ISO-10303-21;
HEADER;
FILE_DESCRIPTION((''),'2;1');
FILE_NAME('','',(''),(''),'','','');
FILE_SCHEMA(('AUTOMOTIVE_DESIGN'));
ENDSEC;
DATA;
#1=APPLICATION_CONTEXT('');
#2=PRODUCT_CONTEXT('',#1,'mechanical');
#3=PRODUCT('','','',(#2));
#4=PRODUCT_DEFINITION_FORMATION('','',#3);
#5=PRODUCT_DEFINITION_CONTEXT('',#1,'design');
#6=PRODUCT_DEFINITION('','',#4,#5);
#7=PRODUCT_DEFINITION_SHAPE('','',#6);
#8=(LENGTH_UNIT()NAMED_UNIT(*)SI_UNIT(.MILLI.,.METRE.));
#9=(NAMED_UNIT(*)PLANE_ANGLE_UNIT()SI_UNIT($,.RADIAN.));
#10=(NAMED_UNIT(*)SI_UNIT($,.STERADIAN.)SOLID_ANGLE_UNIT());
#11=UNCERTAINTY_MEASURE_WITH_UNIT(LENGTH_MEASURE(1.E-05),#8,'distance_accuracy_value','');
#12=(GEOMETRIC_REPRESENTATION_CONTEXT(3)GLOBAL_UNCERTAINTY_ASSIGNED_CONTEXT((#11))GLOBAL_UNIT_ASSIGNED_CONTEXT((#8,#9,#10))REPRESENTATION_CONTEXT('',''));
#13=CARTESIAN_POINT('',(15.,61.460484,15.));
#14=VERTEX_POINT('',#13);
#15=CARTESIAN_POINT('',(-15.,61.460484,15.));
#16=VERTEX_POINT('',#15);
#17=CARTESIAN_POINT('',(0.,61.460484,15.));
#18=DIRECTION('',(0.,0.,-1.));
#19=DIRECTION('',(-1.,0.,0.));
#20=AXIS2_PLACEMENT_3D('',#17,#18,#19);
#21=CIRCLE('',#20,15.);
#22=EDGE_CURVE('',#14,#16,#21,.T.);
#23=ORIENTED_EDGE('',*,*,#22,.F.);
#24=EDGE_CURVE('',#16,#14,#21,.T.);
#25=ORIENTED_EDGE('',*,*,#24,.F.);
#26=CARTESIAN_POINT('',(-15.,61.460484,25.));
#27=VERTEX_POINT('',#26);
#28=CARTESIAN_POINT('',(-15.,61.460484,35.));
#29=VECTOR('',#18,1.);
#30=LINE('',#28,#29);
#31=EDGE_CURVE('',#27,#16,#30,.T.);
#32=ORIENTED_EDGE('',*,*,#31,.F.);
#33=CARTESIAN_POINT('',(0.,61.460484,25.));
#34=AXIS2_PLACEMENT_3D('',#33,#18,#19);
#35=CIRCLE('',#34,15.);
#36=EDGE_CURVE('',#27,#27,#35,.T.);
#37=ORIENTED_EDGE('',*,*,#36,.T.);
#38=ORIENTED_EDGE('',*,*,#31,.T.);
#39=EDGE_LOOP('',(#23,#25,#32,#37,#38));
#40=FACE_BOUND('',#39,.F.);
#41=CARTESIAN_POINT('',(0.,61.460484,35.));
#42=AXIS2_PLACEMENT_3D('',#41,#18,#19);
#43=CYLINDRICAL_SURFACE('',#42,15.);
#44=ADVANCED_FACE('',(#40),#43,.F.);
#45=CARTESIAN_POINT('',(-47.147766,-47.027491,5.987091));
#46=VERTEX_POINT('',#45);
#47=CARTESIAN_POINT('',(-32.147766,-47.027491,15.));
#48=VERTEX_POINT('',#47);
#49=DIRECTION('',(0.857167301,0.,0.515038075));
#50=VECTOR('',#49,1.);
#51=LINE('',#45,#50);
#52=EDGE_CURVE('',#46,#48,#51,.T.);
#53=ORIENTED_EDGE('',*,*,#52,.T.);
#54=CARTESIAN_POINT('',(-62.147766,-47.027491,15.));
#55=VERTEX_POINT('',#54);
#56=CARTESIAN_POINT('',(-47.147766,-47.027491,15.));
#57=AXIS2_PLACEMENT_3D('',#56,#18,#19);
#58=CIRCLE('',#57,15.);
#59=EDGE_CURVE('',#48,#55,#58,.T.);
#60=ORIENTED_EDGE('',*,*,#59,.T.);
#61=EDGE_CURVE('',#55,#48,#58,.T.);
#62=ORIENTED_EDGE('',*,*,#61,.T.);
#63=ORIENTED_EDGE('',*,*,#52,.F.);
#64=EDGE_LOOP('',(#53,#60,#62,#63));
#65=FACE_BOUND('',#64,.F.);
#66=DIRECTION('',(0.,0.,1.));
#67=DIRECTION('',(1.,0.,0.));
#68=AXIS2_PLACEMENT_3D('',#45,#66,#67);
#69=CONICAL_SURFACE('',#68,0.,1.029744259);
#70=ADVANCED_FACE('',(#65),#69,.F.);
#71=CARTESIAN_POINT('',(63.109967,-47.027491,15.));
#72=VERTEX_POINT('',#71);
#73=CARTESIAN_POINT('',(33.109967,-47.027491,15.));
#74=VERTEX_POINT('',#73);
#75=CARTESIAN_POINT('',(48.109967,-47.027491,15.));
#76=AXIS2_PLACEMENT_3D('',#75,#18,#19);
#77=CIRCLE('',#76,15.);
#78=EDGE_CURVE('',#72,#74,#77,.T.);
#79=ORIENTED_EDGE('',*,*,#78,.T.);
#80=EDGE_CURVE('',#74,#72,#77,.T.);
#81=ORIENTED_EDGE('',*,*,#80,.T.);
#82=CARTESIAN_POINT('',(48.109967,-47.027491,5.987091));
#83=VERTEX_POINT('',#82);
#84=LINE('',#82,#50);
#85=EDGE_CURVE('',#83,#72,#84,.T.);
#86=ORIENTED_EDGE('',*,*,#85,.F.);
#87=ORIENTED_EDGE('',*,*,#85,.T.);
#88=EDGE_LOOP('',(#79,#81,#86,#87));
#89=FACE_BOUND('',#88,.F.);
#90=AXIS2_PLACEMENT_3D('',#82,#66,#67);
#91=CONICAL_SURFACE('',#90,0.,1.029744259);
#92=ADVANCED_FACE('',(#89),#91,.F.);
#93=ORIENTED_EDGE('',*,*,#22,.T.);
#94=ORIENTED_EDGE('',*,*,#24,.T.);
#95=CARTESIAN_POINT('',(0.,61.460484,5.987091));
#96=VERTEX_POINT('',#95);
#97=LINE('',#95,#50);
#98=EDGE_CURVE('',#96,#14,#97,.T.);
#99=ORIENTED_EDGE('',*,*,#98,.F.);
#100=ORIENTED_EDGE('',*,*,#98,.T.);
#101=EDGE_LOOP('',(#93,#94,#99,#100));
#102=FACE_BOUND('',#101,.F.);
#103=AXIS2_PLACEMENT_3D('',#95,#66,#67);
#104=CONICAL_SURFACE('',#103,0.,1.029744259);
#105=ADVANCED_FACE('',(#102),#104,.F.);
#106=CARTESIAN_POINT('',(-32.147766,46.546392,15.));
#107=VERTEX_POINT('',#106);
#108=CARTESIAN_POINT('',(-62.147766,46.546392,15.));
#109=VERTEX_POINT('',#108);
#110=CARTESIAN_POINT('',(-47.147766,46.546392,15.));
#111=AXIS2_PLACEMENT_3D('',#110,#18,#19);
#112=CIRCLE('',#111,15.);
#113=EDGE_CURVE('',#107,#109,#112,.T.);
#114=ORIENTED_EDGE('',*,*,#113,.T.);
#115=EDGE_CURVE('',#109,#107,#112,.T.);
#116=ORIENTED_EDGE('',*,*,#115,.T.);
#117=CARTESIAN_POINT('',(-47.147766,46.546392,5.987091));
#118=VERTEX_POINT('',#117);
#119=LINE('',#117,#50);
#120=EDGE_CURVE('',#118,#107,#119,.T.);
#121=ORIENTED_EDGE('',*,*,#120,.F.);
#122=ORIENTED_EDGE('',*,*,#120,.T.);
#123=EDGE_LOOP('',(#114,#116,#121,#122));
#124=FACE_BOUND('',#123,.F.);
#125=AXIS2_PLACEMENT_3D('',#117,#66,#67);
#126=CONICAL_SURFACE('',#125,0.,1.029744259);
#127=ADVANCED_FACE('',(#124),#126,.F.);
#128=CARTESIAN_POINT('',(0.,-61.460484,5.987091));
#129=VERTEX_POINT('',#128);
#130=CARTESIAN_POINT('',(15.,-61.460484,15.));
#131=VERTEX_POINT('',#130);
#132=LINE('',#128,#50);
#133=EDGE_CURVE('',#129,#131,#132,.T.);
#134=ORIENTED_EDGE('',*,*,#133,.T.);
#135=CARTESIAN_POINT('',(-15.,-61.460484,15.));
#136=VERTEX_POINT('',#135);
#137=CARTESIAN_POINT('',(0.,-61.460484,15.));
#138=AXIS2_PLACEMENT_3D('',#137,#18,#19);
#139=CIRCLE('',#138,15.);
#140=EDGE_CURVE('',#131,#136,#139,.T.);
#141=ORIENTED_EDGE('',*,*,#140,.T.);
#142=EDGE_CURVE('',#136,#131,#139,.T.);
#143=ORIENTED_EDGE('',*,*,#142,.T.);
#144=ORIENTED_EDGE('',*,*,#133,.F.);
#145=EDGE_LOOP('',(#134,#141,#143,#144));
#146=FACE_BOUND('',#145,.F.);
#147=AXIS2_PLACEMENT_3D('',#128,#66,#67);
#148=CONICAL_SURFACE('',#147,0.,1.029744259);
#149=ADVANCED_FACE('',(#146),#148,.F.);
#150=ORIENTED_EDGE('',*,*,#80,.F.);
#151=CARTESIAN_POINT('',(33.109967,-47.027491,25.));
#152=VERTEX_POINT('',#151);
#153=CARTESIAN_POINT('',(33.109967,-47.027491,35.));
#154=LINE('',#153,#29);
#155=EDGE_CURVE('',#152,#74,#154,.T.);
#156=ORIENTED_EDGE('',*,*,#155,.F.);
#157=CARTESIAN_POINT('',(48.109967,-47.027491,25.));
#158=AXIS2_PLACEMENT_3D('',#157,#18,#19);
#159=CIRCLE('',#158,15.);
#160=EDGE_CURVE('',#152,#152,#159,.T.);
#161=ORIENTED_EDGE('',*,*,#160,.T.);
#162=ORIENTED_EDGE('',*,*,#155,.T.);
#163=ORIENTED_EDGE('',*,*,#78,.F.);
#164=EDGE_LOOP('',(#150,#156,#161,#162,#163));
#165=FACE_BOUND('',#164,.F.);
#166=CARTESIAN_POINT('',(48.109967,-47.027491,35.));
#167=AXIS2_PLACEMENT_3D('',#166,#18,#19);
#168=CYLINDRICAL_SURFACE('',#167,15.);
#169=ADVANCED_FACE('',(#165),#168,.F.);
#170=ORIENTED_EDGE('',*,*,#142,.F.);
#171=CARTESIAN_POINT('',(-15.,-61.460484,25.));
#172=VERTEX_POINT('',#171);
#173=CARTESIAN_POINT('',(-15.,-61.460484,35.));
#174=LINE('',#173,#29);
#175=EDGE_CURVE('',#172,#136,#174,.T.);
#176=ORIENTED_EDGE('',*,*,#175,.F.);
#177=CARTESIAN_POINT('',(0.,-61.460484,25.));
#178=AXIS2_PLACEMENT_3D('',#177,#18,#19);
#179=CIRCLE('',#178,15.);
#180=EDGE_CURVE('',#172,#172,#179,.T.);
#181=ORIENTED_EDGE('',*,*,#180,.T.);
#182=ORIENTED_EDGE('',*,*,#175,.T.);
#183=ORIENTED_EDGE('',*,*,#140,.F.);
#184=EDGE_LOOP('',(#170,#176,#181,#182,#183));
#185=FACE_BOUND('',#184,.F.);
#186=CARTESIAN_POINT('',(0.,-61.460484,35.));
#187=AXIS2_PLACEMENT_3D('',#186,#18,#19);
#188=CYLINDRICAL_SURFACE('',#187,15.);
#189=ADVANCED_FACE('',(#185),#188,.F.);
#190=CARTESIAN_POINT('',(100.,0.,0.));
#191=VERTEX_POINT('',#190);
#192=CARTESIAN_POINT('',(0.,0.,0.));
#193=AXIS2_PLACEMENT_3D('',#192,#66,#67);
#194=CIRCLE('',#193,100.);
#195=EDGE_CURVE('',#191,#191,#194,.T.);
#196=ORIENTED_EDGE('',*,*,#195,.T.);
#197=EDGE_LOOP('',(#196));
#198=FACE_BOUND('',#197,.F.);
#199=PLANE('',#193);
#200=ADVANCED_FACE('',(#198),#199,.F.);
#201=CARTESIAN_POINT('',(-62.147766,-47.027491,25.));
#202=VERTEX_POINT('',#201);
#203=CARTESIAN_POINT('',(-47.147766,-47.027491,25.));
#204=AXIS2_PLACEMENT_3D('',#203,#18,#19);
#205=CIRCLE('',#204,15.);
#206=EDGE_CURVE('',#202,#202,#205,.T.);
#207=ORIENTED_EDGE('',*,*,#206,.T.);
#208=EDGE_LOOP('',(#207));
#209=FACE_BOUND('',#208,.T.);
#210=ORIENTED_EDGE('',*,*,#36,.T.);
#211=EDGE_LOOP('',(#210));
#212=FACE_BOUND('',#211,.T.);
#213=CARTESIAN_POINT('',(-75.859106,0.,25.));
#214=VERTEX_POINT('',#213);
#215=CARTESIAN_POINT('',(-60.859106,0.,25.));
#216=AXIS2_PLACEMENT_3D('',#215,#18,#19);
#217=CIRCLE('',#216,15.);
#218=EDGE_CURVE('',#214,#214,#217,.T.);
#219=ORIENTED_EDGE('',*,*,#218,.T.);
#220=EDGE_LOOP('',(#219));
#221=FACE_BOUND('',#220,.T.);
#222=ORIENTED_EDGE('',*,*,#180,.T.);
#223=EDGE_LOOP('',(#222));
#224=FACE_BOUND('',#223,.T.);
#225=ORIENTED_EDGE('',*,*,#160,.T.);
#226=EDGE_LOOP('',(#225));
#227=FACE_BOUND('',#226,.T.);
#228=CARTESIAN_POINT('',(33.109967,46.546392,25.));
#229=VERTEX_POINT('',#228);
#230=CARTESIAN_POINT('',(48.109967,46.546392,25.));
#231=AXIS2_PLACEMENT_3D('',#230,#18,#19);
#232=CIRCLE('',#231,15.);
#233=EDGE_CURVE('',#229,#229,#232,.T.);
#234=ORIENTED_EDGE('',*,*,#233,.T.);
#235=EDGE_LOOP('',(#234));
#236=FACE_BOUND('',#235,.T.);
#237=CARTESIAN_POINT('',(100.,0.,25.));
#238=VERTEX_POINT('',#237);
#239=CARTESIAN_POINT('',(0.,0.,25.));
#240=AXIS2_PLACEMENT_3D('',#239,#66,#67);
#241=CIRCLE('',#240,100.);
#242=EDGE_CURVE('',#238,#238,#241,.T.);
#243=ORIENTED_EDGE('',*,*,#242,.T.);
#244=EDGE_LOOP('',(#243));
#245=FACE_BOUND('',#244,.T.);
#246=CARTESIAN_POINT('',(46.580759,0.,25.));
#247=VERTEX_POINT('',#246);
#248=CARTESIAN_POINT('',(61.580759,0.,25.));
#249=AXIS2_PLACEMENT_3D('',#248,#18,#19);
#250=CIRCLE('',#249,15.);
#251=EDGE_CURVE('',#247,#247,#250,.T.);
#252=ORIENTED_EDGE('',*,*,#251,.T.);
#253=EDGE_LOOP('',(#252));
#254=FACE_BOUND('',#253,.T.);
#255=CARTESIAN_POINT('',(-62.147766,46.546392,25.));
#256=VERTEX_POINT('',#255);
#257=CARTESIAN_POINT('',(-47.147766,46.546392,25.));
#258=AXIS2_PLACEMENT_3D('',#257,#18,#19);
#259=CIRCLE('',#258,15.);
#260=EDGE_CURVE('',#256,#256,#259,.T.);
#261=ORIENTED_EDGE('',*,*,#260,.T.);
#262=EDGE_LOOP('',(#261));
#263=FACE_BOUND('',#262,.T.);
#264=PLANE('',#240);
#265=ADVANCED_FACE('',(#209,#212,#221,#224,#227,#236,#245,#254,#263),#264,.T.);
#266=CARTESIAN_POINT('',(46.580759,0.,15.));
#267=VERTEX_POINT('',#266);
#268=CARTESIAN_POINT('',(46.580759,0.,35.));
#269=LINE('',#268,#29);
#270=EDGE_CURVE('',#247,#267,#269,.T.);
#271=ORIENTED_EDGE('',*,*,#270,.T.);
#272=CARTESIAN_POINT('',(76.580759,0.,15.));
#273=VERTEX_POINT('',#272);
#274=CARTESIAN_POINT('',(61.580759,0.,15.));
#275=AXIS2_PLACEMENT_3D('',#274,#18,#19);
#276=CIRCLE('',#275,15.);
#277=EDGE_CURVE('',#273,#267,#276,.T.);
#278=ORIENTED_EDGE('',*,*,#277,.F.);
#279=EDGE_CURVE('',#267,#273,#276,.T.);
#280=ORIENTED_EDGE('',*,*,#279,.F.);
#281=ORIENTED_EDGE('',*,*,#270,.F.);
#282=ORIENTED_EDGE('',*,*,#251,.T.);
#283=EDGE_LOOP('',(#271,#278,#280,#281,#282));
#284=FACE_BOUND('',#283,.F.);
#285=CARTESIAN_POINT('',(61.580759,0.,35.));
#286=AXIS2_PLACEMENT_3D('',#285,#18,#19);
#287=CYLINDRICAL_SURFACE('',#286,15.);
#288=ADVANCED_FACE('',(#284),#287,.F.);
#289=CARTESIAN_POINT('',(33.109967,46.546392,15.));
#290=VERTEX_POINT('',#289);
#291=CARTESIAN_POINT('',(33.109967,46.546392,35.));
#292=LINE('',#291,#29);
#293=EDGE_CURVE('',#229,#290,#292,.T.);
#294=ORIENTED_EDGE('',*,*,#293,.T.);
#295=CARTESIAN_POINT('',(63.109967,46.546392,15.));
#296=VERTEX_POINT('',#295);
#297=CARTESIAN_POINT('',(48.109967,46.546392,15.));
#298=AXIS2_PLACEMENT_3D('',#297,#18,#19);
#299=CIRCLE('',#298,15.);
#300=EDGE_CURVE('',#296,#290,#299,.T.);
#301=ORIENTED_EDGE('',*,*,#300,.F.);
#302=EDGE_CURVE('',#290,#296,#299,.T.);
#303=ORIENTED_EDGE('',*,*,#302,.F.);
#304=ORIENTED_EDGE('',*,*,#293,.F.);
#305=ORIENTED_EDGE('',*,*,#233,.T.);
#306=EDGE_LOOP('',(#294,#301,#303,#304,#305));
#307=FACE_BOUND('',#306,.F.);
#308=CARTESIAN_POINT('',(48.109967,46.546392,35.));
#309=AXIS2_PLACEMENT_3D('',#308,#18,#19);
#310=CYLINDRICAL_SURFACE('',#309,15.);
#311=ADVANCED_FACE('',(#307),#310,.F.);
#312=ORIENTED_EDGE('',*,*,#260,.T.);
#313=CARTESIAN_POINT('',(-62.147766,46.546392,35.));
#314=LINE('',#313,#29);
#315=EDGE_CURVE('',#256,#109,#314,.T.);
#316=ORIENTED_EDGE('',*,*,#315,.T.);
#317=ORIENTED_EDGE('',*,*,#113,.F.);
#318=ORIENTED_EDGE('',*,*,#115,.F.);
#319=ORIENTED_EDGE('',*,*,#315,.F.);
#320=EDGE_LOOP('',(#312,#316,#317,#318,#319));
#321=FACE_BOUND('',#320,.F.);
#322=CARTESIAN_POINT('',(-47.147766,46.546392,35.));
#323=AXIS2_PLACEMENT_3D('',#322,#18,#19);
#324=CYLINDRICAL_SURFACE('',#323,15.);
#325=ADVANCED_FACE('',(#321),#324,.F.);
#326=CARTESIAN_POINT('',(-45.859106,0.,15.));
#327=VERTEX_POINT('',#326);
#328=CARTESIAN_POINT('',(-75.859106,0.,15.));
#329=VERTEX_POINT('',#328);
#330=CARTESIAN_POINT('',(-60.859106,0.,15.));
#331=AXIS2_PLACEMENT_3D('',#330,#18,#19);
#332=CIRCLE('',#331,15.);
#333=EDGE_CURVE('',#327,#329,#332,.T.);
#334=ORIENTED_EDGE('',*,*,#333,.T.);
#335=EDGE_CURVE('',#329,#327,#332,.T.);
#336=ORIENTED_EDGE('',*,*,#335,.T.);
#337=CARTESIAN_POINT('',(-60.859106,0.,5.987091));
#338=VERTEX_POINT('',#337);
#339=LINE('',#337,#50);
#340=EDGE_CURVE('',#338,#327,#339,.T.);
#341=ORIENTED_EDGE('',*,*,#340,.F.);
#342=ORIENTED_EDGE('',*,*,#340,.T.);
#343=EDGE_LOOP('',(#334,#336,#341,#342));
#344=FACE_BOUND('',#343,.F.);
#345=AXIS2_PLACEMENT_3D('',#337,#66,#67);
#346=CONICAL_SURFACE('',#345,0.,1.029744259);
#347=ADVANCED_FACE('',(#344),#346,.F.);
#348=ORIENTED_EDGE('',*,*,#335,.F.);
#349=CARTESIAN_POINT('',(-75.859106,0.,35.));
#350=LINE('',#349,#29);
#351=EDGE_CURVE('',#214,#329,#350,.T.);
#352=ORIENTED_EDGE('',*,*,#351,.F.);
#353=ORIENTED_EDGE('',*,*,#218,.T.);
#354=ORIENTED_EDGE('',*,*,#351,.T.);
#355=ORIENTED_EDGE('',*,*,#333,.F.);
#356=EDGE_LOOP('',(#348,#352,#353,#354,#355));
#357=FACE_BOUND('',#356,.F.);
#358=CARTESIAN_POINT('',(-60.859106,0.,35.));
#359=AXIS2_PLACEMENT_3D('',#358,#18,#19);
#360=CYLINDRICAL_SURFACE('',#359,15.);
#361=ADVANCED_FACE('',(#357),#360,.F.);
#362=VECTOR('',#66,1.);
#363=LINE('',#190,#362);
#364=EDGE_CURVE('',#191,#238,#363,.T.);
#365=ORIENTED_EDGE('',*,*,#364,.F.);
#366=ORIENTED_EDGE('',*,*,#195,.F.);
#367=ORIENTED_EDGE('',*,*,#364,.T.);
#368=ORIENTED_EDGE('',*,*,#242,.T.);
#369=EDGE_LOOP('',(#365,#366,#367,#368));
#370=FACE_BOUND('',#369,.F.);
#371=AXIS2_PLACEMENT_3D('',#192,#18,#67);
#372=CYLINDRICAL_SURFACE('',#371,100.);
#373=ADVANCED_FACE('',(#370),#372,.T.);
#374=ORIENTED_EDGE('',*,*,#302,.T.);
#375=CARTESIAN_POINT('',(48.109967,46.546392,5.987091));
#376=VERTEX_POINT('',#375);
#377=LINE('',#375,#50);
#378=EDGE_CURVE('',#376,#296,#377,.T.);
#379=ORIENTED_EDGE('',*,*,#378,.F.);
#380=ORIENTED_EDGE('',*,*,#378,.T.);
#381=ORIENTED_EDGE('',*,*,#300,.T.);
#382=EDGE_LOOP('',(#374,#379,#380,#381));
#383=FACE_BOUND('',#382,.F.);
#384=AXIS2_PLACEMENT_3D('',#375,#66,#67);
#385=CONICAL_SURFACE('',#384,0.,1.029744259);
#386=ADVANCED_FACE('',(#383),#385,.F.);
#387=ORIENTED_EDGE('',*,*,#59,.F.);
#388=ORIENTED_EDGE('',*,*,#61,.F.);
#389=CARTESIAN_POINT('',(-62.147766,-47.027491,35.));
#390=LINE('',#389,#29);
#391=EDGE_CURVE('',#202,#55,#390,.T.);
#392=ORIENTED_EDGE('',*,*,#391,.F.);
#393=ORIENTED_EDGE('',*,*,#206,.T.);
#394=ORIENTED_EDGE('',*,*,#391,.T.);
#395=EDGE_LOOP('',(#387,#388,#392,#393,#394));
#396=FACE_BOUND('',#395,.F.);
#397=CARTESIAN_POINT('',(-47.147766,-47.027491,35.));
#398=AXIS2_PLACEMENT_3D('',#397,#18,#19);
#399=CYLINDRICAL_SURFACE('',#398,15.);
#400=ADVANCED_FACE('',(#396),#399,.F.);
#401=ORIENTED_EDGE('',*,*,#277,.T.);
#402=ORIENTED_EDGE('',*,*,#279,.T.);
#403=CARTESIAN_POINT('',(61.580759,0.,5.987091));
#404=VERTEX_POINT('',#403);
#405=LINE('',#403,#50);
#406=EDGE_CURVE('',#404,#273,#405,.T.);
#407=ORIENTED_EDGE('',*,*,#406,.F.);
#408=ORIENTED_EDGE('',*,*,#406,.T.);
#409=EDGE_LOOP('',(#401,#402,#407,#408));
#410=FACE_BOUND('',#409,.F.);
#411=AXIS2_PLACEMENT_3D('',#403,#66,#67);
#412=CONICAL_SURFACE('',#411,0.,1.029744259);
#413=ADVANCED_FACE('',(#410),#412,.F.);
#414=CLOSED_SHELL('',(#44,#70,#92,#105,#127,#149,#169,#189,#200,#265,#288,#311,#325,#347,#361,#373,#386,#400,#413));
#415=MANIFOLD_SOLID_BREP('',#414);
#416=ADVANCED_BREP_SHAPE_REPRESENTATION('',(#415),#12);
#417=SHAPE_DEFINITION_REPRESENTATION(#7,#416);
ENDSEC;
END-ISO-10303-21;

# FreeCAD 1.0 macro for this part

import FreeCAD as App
import Part
import Sketcher
Q = App.Units.Quantity

doc = App.newDocument("Part")
body = doc.addObject("PartDesign::Body", "Body")

# Sketch on XY plane
sketch1 = doc.addObject("Sketcher::SketchObject", "Sketch")
body.addObject(sketch1)
sketch1.AttachmentSupport = (doc.XY_Plane, [""])
sketch1.MapMode = "FlatFace"
sketch1.addGeometry(Part.Circle(App.Vector(0, 0, 0), App.Vector(0, 0, 1), 100), False)
sketch1.addConstraint(Sketcher.Constraint("Coincident", 0, 3, -1, 1))
sketch1.addConstraint(Sketcher.Constraint("Diameter", 0, Q("200 mm")))
pad1 = doc.addObject("PartDesign::Pad", "Pad")
body.addObject(pad1)
pad1.Profile = sketch1
pad1.Length = 25

# Sketch on XY plane
sketch2 = doc.addObject("Sketcher::SketchObject", "Sketch001")
body.addObject(sketch2)
sketch2.AttachmentSupport = (doc.XY_Plane, [""])
sketch2.MapMode = "FlatFace"
sketch2.AttachmentOffset = App.Placement(App.Vector(0, 0, 25), App.Rotation())
sketch2.addGeometry(Part.Circle(App.Vector(-47, 47, 0), App.Vector(0, 0, 1), 15), False)
sketch2.addGeometry(Part.Circle(App.Vector(-61, 0, 0), App.Vector(0, 0, 1), 15), False)
sketch2.addGeometry(Part.Circle(App.Vector(-47, -47, 0), App.Vector(0, 0, 1), 15), False)
sketch2.addGeometry(Part.Circle(App.Vector(0, -61, 0), App.Vector(0, 0, 1), 15), False)
sketch2.addGeometry(Part.Circle(App.Vector(48, -47, 0), App.Vector(0, 0, 1), 15), False)
sketch2.addGeometry(Part.Circle(App.Vector(62, 0, 0), App.Vector(0, 0, 1), 15), False)
sketch2.addGeometry(Part.Circle(App.Vector(48, 47, 0), App.Vector(0, 0, 1), 15), False)
sketch2.addGeometry(Part.Circle(App.Vector(0, 61, 0), App.Vector(0, 0, 1), 15), False)
sketch2.addConstraint(Sketcher.Constraint("Equal", 0, 1))
sketch2.addConstraint(Sketcher.Constraint("Equal", 1, 2))
sketch2.addConstraint(Sketcher.Constraint("Equal", 2, 3))
sketch2.addConstraint(Sketcher.Constraint("Equal", 3, 4))
sketch2.addConstraint(Sketcher.Constraint("Equal", 4, 5))
sketch2.addConstraint(Sketcher.Constraint("Equal", 5, 6))
sketch2.addConstraint(Sketcher.Constraint("Equal", 6, 7))
sketch2.addConstraint(Sketcher.Constraint("Symmetric", 3, 3, 7, 3, -1, 1))
sketch2.addConstraint(Sketcher.Constraint("PointOnObject", 1, 3, -1))
sketch2.addConstraint(Sketcher.Constraint("PointOnObject", 3, 3, -2))
sketch2.addConstraint(Sketcher.Constraint("PointOnObject", 5, 3, -1))
sketch2.addConstraint(Sketcher.Constraint("Horizontal", 2, 3, 4, 3))
sketch2.addConstraint(Sketcher.Constraint("Horizontal", 0, 3, 6, 3))
sketch2.addConstraint(Sketcher.Constraint("Vertical", 0, 3, 2, 3))
sketch2.addConstraint(Sketcher.Constraint("Vertical", 4, 3, 6, 3))
sketch2.addConstraint(Sketcher.Constraint("Diameter", 0, Q("30 mm")))
sketch2.addConstraint(Sketcher.Constraint("DistanceY", 2, 3, -1, 1, Q("47.027491 mm")))
sketch2.addConstraint(Sketcher.Constraint("DistanceX", -1, 1, 5, 3, Q("61.580759 mm")))
sketch2.addConstraint(Sketcher.Constraint("DistanceX", 1, 3, 0, 3, Q("13.711341 mm")))
sketch2.addConstraint(Sketcher.Constraint("DistanceX", 4, 3, 5, 3, Q("13.470791 mm")))
sketch2.addConstraint(Sketcher.Constraint("DistanceY", 0, 3, 7, 3, Q("14.914092 mm")))
sketch2.addConstraint(Sketcher.Constraint("DistanceX", 0, 3, -1, 1, Q("47.147766 mm")))
sketch2.addConstraint(Sketcher.Constraint("DistanceY", -1, 1, 0, 3, Q("46.546392 mm")))
doc.recompute()
hole = doc.addObject("PartDesign::Hole", "Hole")
body.addObject(hole)
hole.Profile = sketch2
hole.ThreadType = "None"
hole.Diameter = 30
hole.DepthType = "Dimension"
hole.Depth = 10
hole.DrillPoint = "Angled"
hole.DrillPointAngle = 118

doc.recompute()
